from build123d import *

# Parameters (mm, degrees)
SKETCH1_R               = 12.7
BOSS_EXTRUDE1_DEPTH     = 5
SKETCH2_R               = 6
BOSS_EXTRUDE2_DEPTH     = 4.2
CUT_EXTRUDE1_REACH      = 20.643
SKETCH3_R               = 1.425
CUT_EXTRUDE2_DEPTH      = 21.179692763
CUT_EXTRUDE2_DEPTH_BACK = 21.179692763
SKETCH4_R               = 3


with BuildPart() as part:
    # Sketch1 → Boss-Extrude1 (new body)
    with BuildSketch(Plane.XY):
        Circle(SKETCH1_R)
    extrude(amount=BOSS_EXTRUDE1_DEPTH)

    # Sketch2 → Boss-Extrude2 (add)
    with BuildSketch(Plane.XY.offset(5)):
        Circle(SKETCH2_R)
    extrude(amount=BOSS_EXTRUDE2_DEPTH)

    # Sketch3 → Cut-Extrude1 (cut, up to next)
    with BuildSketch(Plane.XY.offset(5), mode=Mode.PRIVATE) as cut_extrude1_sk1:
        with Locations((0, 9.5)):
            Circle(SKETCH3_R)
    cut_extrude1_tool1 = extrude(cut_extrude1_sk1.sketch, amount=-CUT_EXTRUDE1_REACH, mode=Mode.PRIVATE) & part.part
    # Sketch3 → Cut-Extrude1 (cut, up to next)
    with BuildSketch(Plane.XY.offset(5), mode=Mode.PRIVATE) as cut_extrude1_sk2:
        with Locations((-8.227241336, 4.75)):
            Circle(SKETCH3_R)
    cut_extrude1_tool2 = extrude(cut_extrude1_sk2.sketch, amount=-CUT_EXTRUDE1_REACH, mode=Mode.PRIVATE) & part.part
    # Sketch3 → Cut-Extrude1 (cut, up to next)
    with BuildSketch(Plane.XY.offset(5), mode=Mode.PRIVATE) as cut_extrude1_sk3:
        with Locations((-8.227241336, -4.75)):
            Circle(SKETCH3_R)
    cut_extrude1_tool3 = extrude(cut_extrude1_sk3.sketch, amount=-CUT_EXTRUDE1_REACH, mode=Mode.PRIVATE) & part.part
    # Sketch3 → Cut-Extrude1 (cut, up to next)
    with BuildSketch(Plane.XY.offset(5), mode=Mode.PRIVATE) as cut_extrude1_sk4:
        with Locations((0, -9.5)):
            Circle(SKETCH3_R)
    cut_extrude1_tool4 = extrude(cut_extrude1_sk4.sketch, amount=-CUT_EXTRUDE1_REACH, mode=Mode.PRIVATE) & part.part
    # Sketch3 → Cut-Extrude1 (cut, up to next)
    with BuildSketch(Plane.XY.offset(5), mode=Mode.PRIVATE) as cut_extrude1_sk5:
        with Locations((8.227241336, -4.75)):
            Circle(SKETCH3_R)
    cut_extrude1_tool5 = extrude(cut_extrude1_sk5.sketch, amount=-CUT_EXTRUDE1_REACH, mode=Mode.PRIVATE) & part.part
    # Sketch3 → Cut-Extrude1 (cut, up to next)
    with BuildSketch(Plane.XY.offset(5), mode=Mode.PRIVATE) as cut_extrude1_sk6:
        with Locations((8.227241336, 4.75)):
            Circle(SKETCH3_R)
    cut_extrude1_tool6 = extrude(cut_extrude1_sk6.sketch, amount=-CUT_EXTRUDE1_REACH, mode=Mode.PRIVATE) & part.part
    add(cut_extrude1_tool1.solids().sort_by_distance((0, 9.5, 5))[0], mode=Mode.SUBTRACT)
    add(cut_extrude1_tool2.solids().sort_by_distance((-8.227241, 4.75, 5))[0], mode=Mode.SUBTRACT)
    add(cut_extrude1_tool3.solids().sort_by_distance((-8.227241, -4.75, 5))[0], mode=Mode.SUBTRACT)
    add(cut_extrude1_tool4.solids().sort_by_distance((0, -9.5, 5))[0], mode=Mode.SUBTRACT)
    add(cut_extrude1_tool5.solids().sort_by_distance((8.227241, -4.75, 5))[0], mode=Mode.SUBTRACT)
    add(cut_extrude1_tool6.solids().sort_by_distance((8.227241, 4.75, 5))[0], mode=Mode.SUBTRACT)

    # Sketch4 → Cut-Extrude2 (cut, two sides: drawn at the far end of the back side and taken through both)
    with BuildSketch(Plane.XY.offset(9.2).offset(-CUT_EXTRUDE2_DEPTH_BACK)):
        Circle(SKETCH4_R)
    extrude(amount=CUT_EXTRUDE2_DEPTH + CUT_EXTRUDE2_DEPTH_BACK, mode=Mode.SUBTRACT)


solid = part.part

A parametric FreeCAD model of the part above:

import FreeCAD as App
import Part
import Sketcher
Q = App.Units.Quantity

doc = App.newDocument("Part")
body = doc.addObject("PartDesign::Body", "Body")

# Sketch on XY plane
sketch1 = body.newObject("Sketcher::SketchObject", "Sketch")
sketch1.AttachmentSupport = (doc.getObject("XY_Plane"), [""])
sketch1.MapMode = "FlatFace"
sketch1.addGeometry(Part.Circle(App.Vector(0, 0, 0), App.Vector(0, 0, 1), 13), False)
sketch1.addConstraint([
    Sketcher.Constraint("Coincident", 0, 3, -1, 1),
    Sketcher.Constraint("Diameter", 0, Q("25.4 mm")),
])
pad1 = body.newObject("PartDesign::Pad", "Pad")
pad1.Profile = sketch1
pad1.Length = 5

# Sketch on XY plane
sketch2 = body.newObject("Sketcher::SketchObject", "Sketch001")
sketch2.AttachmentSupport = (doc.getObject("XY_Plane"), [""])
sketch2.MapMode = "FlatFace"
sketch2.AttachmentOffset = App.Placement(App.Vector(0, 0, 5), App.Rotation())
sketch2.addGeometry(Part.Circle(App.Vector(0, 0, 0), App.Vector(0, 0, 1), 6), False)
sketch2.addConstraint([
    Sketcher.Constraint("Coincident", 0, 3, -1, 1),
    Sketcher.Constraint("Diameter", 0, Q("12 mm")),
])
pad2 = body.newObject("PartDesign::Pad", "Pad001")
pad2.Profile = sketch2
pad2.Length = 4.2

# Sketch on XY plane
sketch3 = body.newObject("Sketcher::SketchObject", "Sketch002")
sketch3.AttachmentSupport = (doc.getObject("XY_Plane"), [""])
sketch3.MapMode = "FlatFace"
sketch3.AttachmentOffset = App.Placement(App.Vector(0, 0, 5), App.Rotation())
sketch3.addGeometry(Part.Circle(App.Vector(0, 9.5, 0), App.Vector(0, 0, 1), 1.4), False)
sketch3.addConstraint([
    Sketcher.Constraint("PointOnObject", 0, 3, -2),
    Sketcher.Constraint("Diameter", 0, Q("2.85 mm")),
    Sketcher.Constraint("DistanceY", -1, 1, 0, 3, Q("9.5 mm")),
])
pocket1 = body.newObject("PartDesign::Pocket", "Pocket")
pocket1.Profile = sketch3
pocket1.Type = "UpToFirst"

# Sketch on XY plane
sketch4 = body.newObject("Sketcher::SketchObject", "Sketch003")
sketch4.AttachmentSupport = (doc.getObject("XY_Plane"), [""])
sketch4.MapMode = "FlatFace"
sketch4.AttachmentOffset = App.Placement(App.Vector(0, 0, 5), App.Rotation())
sketch4.addGeometry(Part.Circle(App.Vector(-8.2, 4.8, 0), App.Vector(0, 0, 1), 1.4), False)
sketch4.addConstraint([
    Sketcher.Constraint("Diameter", 0, Q("2.85 mm")),
    Sketcher.Constraint("DistanceY", -1, 1, 0, 3, Q("4.75 mm")),
    Sketcher.Constraint("DistanceX", 0, 3, -1, 1, Q("8.227241 mm")),
])
pocket2 = body.newObject("PartDesign::Pocket", "Pocket001")
pocket2.Profile = sketch4
pocket2.Type = "UpToFirst"

# Sketch on XY plane
sketch5 = body.newObject("Sketcher::SketchObject", "Sketch004")
sketch5.AttachmentSupport = (doc.getObject("XY_Plane"), [""])
sketch5.MapMode = "FlatFace"
sketch5.AttachmentOffset = App.Placement(App.Vector(0, 0, 5), App.Rotation())
sketch5.addGeometry(Part.Circle(App.Vector(-8.2, -4.8, 0), App.Vector(0, 0, 1), 1.4), False)
sketch5.addConstraint([
    Sketcher.Constraint("Diameter", 0, Q("2.85 mm")),
    Sketcher.Constraint("DistanceY", 0, 3, -1, 1, Q("4.75 mm")),
    Sketcher.Constraint("DistanceX", 0, 3, -1, 1, Q("8.227241 mm")),
])
pocket3 = body.newObject("PartDesign::Pocket", "Pocket002")
pocket3.Profile = sketch5
pocket3.Type = "UpToFirst"

# Sketch on XY plane
sketch6 = body.newObject("Sketcher::SketchObject", "Sketch005")
sketch6.AttachmentSupport = (doc.getObject("XY_Plane"), [""])
sketch6.MapMode = "FlatFace"
sketch6.AttachmentOffset = App.Placement(App.Vector(0, 0, 5), App.Rotation())
sketch6.addGeometry(Part.Circle(App.Vector(0, -9.5, 0), App.Vector(0, 0, 1), 1.4), False)
sketch6.addConstraint([
    Sketcher.Constraint("PointOnObject", 0, 3, -2),
    Sketcher.Constraint("Diameter", 0, Q("2.85 mm")),
    Sketcher.Constraint("DistanceY", 0, 3, -1, 1, Q("9.5 mm")),
])
pocket4 = body.newObject("PartDesign::Pocket", "Pocket003")
pocket4.Profile = sketch6
pocket4.Type = "UpToFirst"

# Sketch on XY plane
sketch7 = body.newObject("Sketcher::SketchObject", "Sketch006")
sketch7.AttachmentSupport = (doc.getObject("XY_Plane"), [""])
sketch7.MapMode = "FlatFace"
sketch7.AttachmentOffset = App.Placement(App.Vector(0, 0, 5), App.Rotation())
sketch7.addGeometry(Part.Circle(App.Vector(8.2, -4.8, 0), App.Vector(0, 0, 1), 1.4), False)
sketch7.addConstraint([
    Sketcher.Constraint("Diameter", 0, Q("2.85 mm")),
    Sketcher.Constraint("DistanceY", 0, 3, -1, 1, Q("4.75 mm")),
    Sketcher.Constraint("DistanceX", -1, 1, 0, 3, Q("8.227241 mm")),
])
pocket5 = body.newObject("PartDesign::Pocket", "Pocket004")
pocket5.Profile = sketch7
pocket5.Type = "UpToFirst"

# Sketch on XY plane
sketch8 = body.newObject("Sketcher::SketchObject", "Sketch007")
sketch8.AttachmentSupport = (doc.getObject("XY_Plane"), [""])
sketch8.MapMode = "FlatFace"
sketch8.AttachmentOffset = App.Placement(App.Vector(0, 0, 5), App.Rotation())
sketch8.addGeometry(Part.Circle(App.Vector(8.2, 4.8, 0), App.Vector(0, 0, 1), 1.4), False)
sketch8.addConstraint([
    Sketcher.Constraint("Diameter", 0, Q("2.85 mm")),
    Sketcher.Constraint("DistanceY", -1, 1, 0, 3, Q("4.75 mm")),
    Sketcher.Constraint("DistanceX", -1, 1, 0, 3, Q("8.227241 mm")),
])
pocket6 = body.newObject("PartDesign::Pocket", "Pocket005")
pocket6.Profile = sketch8
pocket6.Type = "UpToFirst"

# Sketch on XY plane
sketch9 = body.newObject("Sketcher::SketchObject", "Sketch008")
sketch9.AttachmentSupport = (doc.getObject("XY_Plane"), [""])
sketch9.MapMode = "FlatFace"
sketch9.AttachmentOffset = App.Placement(App.Vector(0, 0, 9.2), App.Rotation())
sketch9.addGeometry(Part.Circle(App.Vector(0, 0, 0), App.Vector(0, 0, 1), 3), False)
sketch9.addConstraint([
    Sketcher.Constraint("Coincident", 0, 3, -1, 1),
    Sketcher.Constraint("Diameter", 0, Q("6 mm")),
])
pocket7 = body.newObject("PartDesign::Pocket", "Pocket006")
pocket7.Profile = sketch9
pocket7.Type = "ThroughAll"
pocket7.Midplane = True

doc.recompute()
